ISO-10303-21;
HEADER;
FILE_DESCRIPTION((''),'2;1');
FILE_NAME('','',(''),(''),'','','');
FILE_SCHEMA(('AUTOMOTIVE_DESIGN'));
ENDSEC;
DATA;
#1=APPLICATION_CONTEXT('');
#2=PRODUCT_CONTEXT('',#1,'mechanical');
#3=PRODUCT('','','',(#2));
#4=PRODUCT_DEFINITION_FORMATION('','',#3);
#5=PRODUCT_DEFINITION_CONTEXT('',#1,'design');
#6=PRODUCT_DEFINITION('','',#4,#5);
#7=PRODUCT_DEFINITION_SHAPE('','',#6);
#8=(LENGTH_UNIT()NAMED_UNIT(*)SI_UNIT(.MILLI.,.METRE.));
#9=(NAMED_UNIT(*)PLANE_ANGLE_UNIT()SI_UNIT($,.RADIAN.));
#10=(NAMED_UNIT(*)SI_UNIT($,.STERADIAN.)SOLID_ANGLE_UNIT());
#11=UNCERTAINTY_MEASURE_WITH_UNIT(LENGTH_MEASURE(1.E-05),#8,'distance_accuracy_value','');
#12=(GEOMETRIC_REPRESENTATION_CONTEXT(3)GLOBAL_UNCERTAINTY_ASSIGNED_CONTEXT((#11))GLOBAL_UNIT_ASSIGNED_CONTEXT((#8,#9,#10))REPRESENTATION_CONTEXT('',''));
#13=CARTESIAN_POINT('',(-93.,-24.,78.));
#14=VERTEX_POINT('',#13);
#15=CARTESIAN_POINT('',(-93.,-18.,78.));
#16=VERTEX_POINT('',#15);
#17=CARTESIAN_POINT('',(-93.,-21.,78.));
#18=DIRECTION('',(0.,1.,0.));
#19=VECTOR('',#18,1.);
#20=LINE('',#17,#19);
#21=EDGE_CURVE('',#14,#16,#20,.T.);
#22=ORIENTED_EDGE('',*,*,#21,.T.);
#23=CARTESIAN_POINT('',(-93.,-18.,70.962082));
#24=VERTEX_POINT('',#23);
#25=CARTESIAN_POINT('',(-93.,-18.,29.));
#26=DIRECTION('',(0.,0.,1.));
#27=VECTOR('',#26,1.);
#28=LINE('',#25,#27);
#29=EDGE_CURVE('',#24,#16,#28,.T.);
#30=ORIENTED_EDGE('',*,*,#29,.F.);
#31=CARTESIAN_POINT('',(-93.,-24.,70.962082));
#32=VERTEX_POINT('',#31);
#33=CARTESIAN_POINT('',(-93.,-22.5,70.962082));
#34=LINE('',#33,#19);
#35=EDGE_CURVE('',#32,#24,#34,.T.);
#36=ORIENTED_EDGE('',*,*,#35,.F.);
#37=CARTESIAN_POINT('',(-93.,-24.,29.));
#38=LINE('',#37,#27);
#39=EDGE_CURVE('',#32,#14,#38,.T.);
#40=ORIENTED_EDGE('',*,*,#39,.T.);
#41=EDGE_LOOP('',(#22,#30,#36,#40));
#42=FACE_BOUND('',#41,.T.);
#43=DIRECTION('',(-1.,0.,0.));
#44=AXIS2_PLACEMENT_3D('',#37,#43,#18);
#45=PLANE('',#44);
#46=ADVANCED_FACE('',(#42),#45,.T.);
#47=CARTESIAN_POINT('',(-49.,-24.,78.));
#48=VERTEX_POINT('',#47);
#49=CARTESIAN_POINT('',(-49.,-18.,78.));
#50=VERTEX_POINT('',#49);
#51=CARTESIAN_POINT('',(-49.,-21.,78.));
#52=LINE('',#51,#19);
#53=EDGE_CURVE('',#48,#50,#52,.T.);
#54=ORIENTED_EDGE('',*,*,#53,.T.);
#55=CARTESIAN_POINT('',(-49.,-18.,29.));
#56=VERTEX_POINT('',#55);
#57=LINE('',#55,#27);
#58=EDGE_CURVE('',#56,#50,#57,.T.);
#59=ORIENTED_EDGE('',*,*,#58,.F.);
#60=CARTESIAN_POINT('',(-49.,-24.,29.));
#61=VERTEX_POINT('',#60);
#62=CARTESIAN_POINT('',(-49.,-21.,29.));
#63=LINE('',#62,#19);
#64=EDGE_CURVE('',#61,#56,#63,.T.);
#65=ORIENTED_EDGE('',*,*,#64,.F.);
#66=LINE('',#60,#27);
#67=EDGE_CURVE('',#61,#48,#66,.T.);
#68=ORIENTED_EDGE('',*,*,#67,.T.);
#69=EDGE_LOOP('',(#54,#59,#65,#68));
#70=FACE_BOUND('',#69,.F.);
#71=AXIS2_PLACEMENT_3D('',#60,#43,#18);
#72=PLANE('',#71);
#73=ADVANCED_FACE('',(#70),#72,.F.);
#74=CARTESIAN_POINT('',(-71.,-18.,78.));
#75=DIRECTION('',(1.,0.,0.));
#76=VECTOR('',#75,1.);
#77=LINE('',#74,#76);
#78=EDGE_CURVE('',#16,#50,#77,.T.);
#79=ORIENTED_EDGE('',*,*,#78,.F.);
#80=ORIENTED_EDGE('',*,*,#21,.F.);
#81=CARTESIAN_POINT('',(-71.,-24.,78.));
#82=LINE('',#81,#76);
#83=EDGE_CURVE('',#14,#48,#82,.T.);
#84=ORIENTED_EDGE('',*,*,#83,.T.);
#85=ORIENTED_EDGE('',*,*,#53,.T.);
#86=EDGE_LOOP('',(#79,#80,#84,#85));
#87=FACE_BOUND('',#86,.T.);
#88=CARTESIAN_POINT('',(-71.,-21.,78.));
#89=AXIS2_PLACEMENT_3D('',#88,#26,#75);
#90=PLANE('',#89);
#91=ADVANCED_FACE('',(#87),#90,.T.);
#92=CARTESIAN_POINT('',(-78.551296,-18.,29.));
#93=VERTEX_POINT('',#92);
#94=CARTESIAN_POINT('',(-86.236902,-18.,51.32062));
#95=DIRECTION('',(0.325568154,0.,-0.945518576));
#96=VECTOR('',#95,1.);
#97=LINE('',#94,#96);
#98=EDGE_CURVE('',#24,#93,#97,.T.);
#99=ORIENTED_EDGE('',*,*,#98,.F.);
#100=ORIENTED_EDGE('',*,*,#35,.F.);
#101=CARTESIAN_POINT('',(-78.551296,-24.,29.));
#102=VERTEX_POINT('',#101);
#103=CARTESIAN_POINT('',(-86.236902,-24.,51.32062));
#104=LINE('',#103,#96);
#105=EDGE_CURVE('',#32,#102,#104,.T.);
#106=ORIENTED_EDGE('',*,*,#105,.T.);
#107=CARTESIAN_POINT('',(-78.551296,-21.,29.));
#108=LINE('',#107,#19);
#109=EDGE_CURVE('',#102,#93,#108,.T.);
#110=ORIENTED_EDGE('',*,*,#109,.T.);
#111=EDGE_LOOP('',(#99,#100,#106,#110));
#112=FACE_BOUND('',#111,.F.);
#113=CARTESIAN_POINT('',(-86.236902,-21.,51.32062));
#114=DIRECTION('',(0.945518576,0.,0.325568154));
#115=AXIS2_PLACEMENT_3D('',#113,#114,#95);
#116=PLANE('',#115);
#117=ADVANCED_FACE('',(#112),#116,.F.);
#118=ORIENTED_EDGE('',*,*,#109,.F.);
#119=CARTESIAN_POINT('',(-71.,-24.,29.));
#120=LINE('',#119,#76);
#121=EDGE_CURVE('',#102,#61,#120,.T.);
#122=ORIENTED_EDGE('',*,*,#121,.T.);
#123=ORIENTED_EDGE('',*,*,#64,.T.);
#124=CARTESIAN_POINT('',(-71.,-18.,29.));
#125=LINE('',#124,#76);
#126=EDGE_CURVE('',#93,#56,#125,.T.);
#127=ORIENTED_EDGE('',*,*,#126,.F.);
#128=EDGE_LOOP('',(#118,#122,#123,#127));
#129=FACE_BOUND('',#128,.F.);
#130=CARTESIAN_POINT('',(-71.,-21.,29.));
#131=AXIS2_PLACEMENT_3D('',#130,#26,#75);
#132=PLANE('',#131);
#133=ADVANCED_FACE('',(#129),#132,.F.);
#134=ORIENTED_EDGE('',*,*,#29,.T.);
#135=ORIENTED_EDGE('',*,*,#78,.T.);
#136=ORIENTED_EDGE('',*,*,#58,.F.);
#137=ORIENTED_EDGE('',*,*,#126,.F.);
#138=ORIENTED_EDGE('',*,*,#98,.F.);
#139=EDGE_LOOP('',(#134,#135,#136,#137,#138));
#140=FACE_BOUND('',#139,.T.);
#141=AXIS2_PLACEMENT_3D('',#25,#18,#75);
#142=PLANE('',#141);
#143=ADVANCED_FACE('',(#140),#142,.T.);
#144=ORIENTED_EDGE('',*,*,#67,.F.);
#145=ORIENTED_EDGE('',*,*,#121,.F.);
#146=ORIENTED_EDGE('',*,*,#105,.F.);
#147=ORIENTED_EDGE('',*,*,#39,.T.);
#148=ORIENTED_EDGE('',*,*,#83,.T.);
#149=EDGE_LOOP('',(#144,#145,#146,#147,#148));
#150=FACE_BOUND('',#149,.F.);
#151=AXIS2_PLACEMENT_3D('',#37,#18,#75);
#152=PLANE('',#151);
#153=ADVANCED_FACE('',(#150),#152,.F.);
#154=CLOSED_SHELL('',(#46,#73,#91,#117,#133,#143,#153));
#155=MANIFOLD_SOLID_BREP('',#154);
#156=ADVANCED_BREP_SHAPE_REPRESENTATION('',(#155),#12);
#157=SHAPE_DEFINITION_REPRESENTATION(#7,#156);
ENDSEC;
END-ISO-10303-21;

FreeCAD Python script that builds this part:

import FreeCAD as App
import Part
import Sketcher
Q = App.Units.Quantity

doc = App.newDocument("Part")
params = doc.addObject("Spreadsheet::Sheet", "Params")
for row, (alias, value) in enumerate([
    ("sketch1_width", "80 mm"),
    ("sketch1_height", "6 mm"),
    ("pad1_length", "20 mm"),
    ("sketch2_width", "44 mm"),
    ("sketch2_height", "6 mm"),
    ("pad2_length", "49 mm"),
], start=1):
    params.set(f"A{row}", alias)
    params.set(f"B{row}", "=" + value)
    params.setAlias(f"B{row}", alias)

body = doc.addObject("PartDesign::Body", "Body")

sketch1 = body.newObject("Sketcher::SketchObject", "Sketch")
sketch1.AttachmentSupport = (doc.getObject("XY_Plane"), [""])
sketch1.MapMode = "FlatFace"
sketch1.addGeometry([
    Part.LineSegment(App.Vector(0, 6, 0), App.Vector(0, 0, 0)),
    Part.LineSegment(App.Vector(0, 0, 0), App.Vector(80, 0, 0)),
    Part.LineSegment(App.Vector(80, 0, 0), App.Vector(80, 6, 0)),
    Part.LineSegment(App.Vector(80, 6, 0), App.Vector(0, 6, 0)),
], False)
sketch1.addConstraint([
    Sketcher.Constraint("Coincident", 0, 2, 1, 1),
    Sketcher.Constraint("Coincident", 1, 2, 2, 1),
    Sketcher.Constraint("Coincident", 2, 2, 3, 1),
    Sketcher.Constraint("Coincident", 3, 2, 0, 1),
    Sketcher.Constraint("Vertical", 0),
    Sketcher.Constraint("Horizontal", 1),
    Sketcher.Constraint("Vertical", 2),
    Sketcher.Constraint("Horizontal", 3),
    Sketcher.Constraint("Coincident", 0, 2, -1, 1),
    Sketcher.Constraint("DistanceX", 1, 1, 1, 2, Q("80 mm")),
    Sketcher.Constraint("DistanceY", 0, 2, 0, 1, Q("6 mm")),
])
sketch1.setExpression("Constraints[9]", "Params.sketch1_width")
sketch1.setExpression("Constraints[10]", "Params.sketch1_height")
pad1 = body.newObject("PartDesign::Pad", "Pad")
pad1.Profile = sketch1
pad1.setExpression("Length", "Params.pad1_length")
body2 = doc.addObject("PartDesign::Body", "Body001")
doc.recompute()

body.Placement = App.Placement(App.Vector(-118.17, -24, 82.63), App.Rotation(App.Vector(0, 1, 0), 71))
boolean = body2.newObject("PartDesign::Boolean", "Boolean")
boolean.Type = "Fuse"
boolean.addObjects([body])
body3 = doc.addObject("PartDesign::Body", "Body002")

sketch2 = body3.newObject("Sketcher::SketchObject", "Sketch001")
sketch2.AttachmentSupport = (doc.getObject("XY_Plane002"), [""])
sketch2.MapMode = "FlatFace"
sketch2.AttachmentOffset = App.Placement(App.Vector(0, 0, 29), App.Rotation())
sketch2.addGeometry([
    Part.LineSegment(App.Vector(-93, -18, 0), App.Vector(-93, -24, 0)),
    Part.LineSegment(App.Vector(-93, -24, 0), App.Vector(-49, -24, 0)),
    Part.LineSegment(App.Vector(-49, -24, 0), App.Vector(-49, -18, 0)),
    Part.LineSegment(App.Vector(-49, -18, 0), App.Vector(-93, -18, 0)),
], False)
sketch2.addConstraint([
    Sketcher.Constraint("Coincident", 0, 2, 1, 1),
    Sketcher.Constraint("Coincident", 1, 2, 2, 1),
    Sketcher.Constraint("Coincident", 2, 2, 3, 1),
    Sketcher.Constraint("Coincident", 3, 2, 0, 1),
    Sketcher.Constraint("Vertical", 0),
    Sketcher.Constraint("Horizontal", 1),
    Sketcher.Constraint("Vertical", 2),
    Sketcher.Constraint("Horizontal", 3),
    Sketcher.Constraint("DistanceX", 1, 1, 1, 2, Q("44 mm")),
    Sketcher.Constraint("DistanceY", 0, 2, 0, 1, Q("6 mm")),
    Sketcher.Constraint("DistanceX", 0, 2, -1, 1, Q("93 mm")),
    Sketcher.Constraint("DistanceY", 0, 2, -1, 1, Q("24 mm")),
])
sketch2.setExpression("Constraints[8]", "Params.sketch2_width")
sketch2.setExpression("Constraints[9]", "Params.sketch2_height")
pad2 = body3.newObject("PartDesign::Pad", "Pad001")
pad2.Profile = sketch2
pad2.setExpression("Length", "Params.pad2_length")
doc.recompute()

boolean2 = body3.newObject("PartDesign::Boolean", "Boolean001")
boolean2.Type = "Cut"
boolean2.addObjects([body2])

doc.recompute()
